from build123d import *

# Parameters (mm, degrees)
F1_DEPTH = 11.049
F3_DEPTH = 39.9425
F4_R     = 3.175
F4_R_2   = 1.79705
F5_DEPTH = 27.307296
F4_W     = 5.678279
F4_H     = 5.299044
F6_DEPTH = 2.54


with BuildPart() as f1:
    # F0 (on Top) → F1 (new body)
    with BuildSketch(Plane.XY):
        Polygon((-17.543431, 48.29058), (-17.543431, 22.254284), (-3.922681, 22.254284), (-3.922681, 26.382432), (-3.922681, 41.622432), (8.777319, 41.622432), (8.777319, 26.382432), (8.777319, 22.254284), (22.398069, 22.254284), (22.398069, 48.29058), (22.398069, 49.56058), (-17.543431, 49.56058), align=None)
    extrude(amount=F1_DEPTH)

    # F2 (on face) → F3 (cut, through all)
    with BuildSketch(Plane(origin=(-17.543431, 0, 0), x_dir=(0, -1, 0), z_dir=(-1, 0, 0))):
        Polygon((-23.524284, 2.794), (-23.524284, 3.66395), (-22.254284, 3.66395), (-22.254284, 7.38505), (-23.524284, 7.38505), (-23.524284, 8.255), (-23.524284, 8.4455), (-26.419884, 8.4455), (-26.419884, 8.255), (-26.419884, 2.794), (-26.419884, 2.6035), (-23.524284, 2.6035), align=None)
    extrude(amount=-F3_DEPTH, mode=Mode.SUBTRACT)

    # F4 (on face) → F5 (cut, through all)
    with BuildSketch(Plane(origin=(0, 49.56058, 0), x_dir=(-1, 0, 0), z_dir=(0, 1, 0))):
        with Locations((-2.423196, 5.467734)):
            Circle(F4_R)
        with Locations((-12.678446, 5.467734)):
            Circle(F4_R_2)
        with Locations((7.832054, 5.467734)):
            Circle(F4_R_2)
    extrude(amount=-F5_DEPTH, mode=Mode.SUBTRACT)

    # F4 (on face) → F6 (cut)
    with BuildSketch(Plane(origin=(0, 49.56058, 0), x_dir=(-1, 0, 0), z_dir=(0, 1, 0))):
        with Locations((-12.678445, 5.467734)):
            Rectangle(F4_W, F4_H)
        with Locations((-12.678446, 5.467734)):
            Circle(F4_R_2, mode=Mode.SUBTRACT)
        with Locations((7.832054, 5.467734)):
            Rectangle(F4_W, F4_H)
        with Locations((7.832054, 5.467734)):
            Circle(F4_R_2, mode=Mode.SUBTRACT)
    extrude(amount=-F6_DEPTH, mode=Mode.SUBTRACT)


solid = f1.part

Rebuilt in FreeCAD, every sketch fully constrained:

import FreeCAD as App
import Part
import Sketcher
Q = App.Units.Quantity

doc = App.newDocument("Part")
params = doc.addObject("Spreadsheet::Sheet", "Params")
for row, (alias, value) in enumerate([
    ("sketch1_width", "0.5 in"),
    ("pad1_length", "0.435 in"),
    ("sketch2_width", "0.05 in"),
    ("sketch2_height", "0.23 in"),
    ("sketch2_width2", "0.114 in"),
    ("sketch3_diameter", "0.25 in"),
    ("pocket3_length", "0.1 in"),
], start=1):
    params.set(f"A{row}", alias)
    params.set(f"B{row}", "=" + value)
    params.setAlias(f"B{row}", alias)

body = doc.addObject("PartDesign::Body", "Body")

# Sketch on XY plane
sketch1 = body.newObject("Sketcher::SketchObject", "Sketch")
sketch1.AttachmentSupport = (doc.getObject("XY_Plane"), [""])
sketch1.MapMode = "FlatFace"
sketch1.addGeometry([
    Part.LineSegment(App.Vector(-17.543431, 22.254284, 0), App.Vector(-3.922681, 22.254284, 0)),  # 0
    Part.LineSegment(App.Vector(-3.922681, 22.254284, 0), App.Vector(-3.922681, 41.622432, 0)),  # 1
    Part.LineSegment(App.Vector(-3.922681, 41.622432, 0), App.Vector(8.777319, 41.622432, 0)),  # 2
    Part.LineSegment(App.Vector(8.777319, 41.622432, 0), App.Vector(8.777319, 22.254284, 0)),  # 3
    Part.LineSegment(App.Vector(8.777319, 22.254284, 0), App.Vector(22.398069, 22.254284, 0)),  # 4
    Part.LineSegment(App.Vector(22.398069, 22.254284, 0), App.Vector(22.398069, 49.56058, 0)),  # 5
    Part.LineSegment(App.Vector(22.398069, 49.56058, 0), App.Vector(-17.543431, 49.56058, 0)),  # 6
    Part.LineSegment(App.Vector(-17.543431, 49.56058, 0), App.Vector(-17.543431, 22.254284, 0)),  # 7
], False)
sketch1.addConstraint([
    Sketcher.Constraint("Coincident", 0, 2, 1, 1),
    Sketcher.Constraint("Coincident", 1, 2, 2, 1),
    Sketcher.Constraint("Coincident", 2, 2, 3, 1),
    Sketcher.Constraint("Coincident", 3, 2, 4, 1),
    Sketcher.Constraint("Coincident", 4, 2, 5, 1),
    Sketcher.Constraint("Coincident", 5, 2, 6, 1),
    Sketcher.Constraint("Coincident", 6, 2, 7, 1),
    Sketcher.Constraint("Coincident", 7, 2, 0, 1),
    Sketcher.Constraint("Horizontal", 0),
    Sketcher.Constraint("Vertical", 1),
    Sketcher.Constraint("Horizontal", 2),
    Sketcher.Constraint("Vertical", 3),
    Sketcher.Constraint("Horizontal", 4),
    Sketcher.Constraint("Vertical", 5),
    Sketcher.Constraint("Horizontal", 6),
    Sketcher.Constraint("Vertical", 7),
    Sketcher.Constraint("Horizontal", 0, 2, 3, 2),
    Sketcher.Constraint("Equal", 0, 4),
    Sketcher.Constraint("DistanceX", 2, 1, 2, 2, Q("0.5 in")),
    Sketcher.Constraint("DistanceX", 6, 2, 6, 1, Q("1.5725 in")),
    Sketcher.Constraint("DistanceY", 1, 1, 1, 2, 19.368148),
    Sketcher.Constraint("DistanceY", 5, 1, 5, 2, 27.306296),
    Sketcher.Constraint("DistanceX", 0, 2, -1, 1, 3.922681),
    Sketcher.Constraint("DistanceY", -1, 1, 5, 2, 49.56058),
])
sketch1.setExpression("Constraints[18]", "Params.sketch1_width")
pad1 = body.newObject("PartDesign::Pad", "Pad")
pad1.Profile = sketch1
pad1.setExpression("Length", "Params.pad1_length")

# Sketch on YZ plane
sketch2 = body.newObject("Sketcher::SketchObject", "Sketch001")
sketch2.AttachmentSupport = (doc.getObject("YZ_Plane"), [""])
sketch2.MapMode = "FlatFace"
sketch2.AttachmentOffset = App.Placement(App.Vector(0, 0, -17.543431), App.Rotation())
sketch2.addGeometry([
    Part.LineSegment(App.Vector(23.524284, 3.66395, 0), App.Vector(22.254284, 3.66395, 0)),  # 0
    Part.LineSegment(App.Vector(22.254284, 3.66395, 0), App.Vector(22.254284, 7.38505, 0)),  # 1
    Part.LineSegment(App.Vector(22.254284, 7.38505, 0), App.Vector(23.524284, 7.38505, 0)),  # 2
    Part.LineSegment(App.Vector(23.524284, 7.38505, 0), App.Vector(23.524284, 8.4455, 0)),  # 3
    Part.LineSegment(App.Vector(23.524284, 8.4455, 0), App.Vector(26.419884, 8.4455, 0)),  # 4
    Part.LineSegment(App.Vector(26.419884, 8.4455, 0), App.Vector(26.419884, 2.6035, 0)),  # 5
    Part.LineSegment(App.Vector(26.419884, 2.6035, 0), App.Vector(23.524284, 2.6035, 0)),  # 6
    Part.LineSegment(App.Vector(23.524284, 2.6035, 0), App.Vector(23.524284, 3.66395, 0)),  # 7
], False)
sketch2.addConstraint([
    Sketcher.Constraint("Coincident", 0, 2, 1, 1),
    Sketcher.Constraint("Coincident", 1, 2, 2, 1),
    Sketcher.Constraint("Coincident", 2, 2, 3, 1),
    Sketcher.Constraint("Coincident", 3, 2, 4, 1),
    Sketcher.Constraint("Coincident", 4, 2, 5, 1),
    Sketcher.Constraint("Coincident", 5, 2, 6, 1),
    Sketcher.Constraint("Coincident", 6, 2, 7, 1),
    Sketcher.Constraint("Coincident", 7, 2, 0, 1),
    Sketcher.Constraint("Horizontal", 0),
    Sketcher.Constraint("Vertical", 1),
    Sketcher.Constraint("Horizontal", 2),
    Sketcher.Constraint("Vertical", 3),
    Sketcher.Constraint("Horizontal", 4),
    Sketcher.Constraint("Vertical", 5),
    Sketcher.Constraint("Horizontal", 6),
    Sketcher.Constraint("Vertical", 7),
    Sketcher.Constraint("Vertical", 3, 2, 6, 2),
    Sketcher.Constraint("Equal", 3, 7),
    Sketcher.Constraint("DistanceX", 0, 2, 0, 1, Q("0.05 in")),
    Sketcher.Constraint("DistanceY", 5, 2, 5, 1, Q("0.23 in")),
    Sketcher.Constraint("DistanceX", 4, 1, 4, 2, Q("0.114 in")),
    Sketcher.Constraint("DistanceY", 1, 1, 1, 2, Q("0.1465 in")),
    Sketcher.Constraint("DistanceY", -1, 1, 3, 2, Q("0.3325 in")),
    Sketcher.Constraint("DistanceX", -1, 1, 0, 2, 22.254284),
])
sketch2.setExpression("Constraints[18]", "Params.sketch2_width")
sketch2.setExpression("Constraints[19]", "Params.sketch2_height")
sketch2.setExpression("Constraints[20]", "Params.sketch2_width2")
pocket1 = body.newObject("PartDesign::Pocket", "Pocket")
pocket1.Profile = sketch2
pocket1.Type = "ThroughAll"
pocket1.Reversed = True

# Sketch on XZ plane
sketch3 = body.newObject("Sketcher::SketchObject", "Sketch002")
sketch3.AttachmentSupport = (doc.getObject("XZ_Plane"), [""])
sketch3.MapMode = "FlatFace"
sketch3.AttachmentOffset = App.Placement(App.Vector(0, 0, -49.56058), App.Rotation())
sketch3.addGeometry([
    Part.Circle(App.Vector(2.423196, 5.467734, 0), App.Vector(0, 0, 1), 3.175),
    Part.Circle(App.Vector(12.678446, 5.467734, 0), App.Vector(0, 0, 1), 1.79705),
    Part.Circle(App.Vector(-7.832054, 5.467734, 0), App.Vector(0, 0, 1), 1.79705),
], False)
sketch3.addConstraint([
    Sketcher.Constraint("Equal", 1, 2),
    Sketcher.Constraint("Horizontal", 0, 3, 1, 3),
    Sketcher.Constraint("Horizontal", 1, 3, 2, 3),
    Sketcher.Constraint("Diameter", 0, Q("0.25 in")),
    Sketcher.Constraint("Diameter", 1, Q("0.1415 in")),
    Sketcher.Constraint("DistanceX", 2, 3, 1, 3, Q("0.8075 in")),
    Sketcher.Constraint("DistanceX", 0, 3, 1, 3, 10.25525),
    Sketcher.Constraint("DistanceX", -1, 1, 0, 3, 2.423196),
    Sketcher.Constraint("DistanceY", -1, 1, 0, 3, 5.467734),
])
sketch3.setExpression("Constraints[3]", "Params.sketch3_diameter")
pocket2 = body.newObject("PartDesign::Pocket", "Pocket001")
pocket2.Profile = sketch3
pocket2.Type = "ThroughAll"
pocket2.Reversed = True

# Sketch on XZ plane
sketch4 = body.newObject("Sketcher::SketchObject", "Sketch003")
sketch4.AttachmentSupport = (doc.getObject("XZ_Plane"), [""])
sketch4.MapMode = "FlatFace"
sketch4.AttachmentOffset = App.Placement(App.Vector(0, 0, -49.56058), App.Rotation())
sketch4.addGeometry([
    Part.LineSegment(App.Vector(15.517584, 8.117256, 0), App.Vector(15.517584, 2.818212, 0)),  # 0
    Part.LineSegment(App.Vector(15.517584, 2.818212, 0), App.Vector(9.839306, 2.818212, 0)),  # 1
    Part.LineSegment(App.Vector(9.839306, 2.818212, 0), App.Vector(9.839306, 8.117256, 0)),  # 2
    Part.LineSegment(App.Vector(9.839306, 8.117256, 0), App.Vector(15.517584, 8.117256, 0)),  # 3
    Part.Circle(App.Vector(12.678446, 5.467734, 0), App.Vector(0, 0, 1), 1.79705),  # 4
    Part.LineSegment(App.Vector(-4.992915, 8.117256, 0), App.Vector(-4.992915, 2.818212, 0)),  # 5
    Part.LineSegment(App.Vector(-4.992915, 2.818212, 0), App.Vector(-10.671193, 2.818212, 0)),  # 6
    Part.LineSegment(App.Vector(-10.671193, 2.818212, 0), App.Vector(-10.671193, 8.117256, 0)),  # 7
    Part.LineSegment(App.Vector(-10.671193, 8.117256, 0), App.Vector(-4.992915, 8.117256, 0)),  # 8
    Part.Circle(App.Vector(-7.832054, 5.467734, 0), App.Vector(0, 0, 1), 1.79705),  # 9
], False)
sketch4.addConstraint([
    Sketcher.Constraint("Coincident", 0, 2, 1, 1),
    Sketcher.Constraint("Coincident", 1, 2, 2, 1),
    Sketcher.Constraint("Coincident", 2, 2, 3, 1),
    Sketcher.Constraint("Coincident", 3, 2, 0, 1),
    Sketcher.Constraint("Coincident", 5, 2, 6, 1),
    Sketcher.Constraint("Coincident", 6, 2, 7, 1),
    Sketcher.Constraint("Coincident", 7, 2, 8, 1),
    Sketcher.Constraint("Coincident", 8, 2, 5, 1),
    Sketcher.Constraint("Vertical", 0),
    Sketcher.Constraint("Horizontal", 1),
    Sketcher.Constraint("Vertical", 2),
    Sketcher.Constraint("Horizontal", 3),
    Sketcher.Constraint("Vertical", 5),
    Sketcher.Constraint("Horizontal", 6),
    Sketcher.Constraint("Vertical", 7),
    Sketcher.Constraint("Horizontal", 8),
    Sketcher.Constraint("Equal", 4, 9),
    Sketcher.Constraint("Horizontal", 4, 3, 9, 3),
    Sketcher.Constraint("Horizontal", 1, 2, 5, 2),
    Sketcher.Constraint("Horizontal", 3, 2, 7, 2),
    Sketcher.Constraint("Equal", 3, 6),
    Sketcher.Constraint("Diameter", 4, Q("0.1415 in")),
    Sketcher.Constraint("DistanceX", 9, 3, 4, 3, Q("0.8075 in")),
    Sketcher.Constraint("DistanceX", 5, 2, 0, 2, Q("0.8075 in")),
    Sketcher.Constraint("DistanceX", 1, 2, 1, 1, 5.678279),
    Sketcher.Constraint("DistanceY", 0, 2, 0, 1, 5.299044),
    Sketcher.Constraint("DistanceY", -1, 1, 0, 2, 2.818212),
    Sketcher.Constraint("DistanceX", 4, 3, 0, 2, 2.839139),
    Sketcher.Constraint("DistanceY", 4, 3, 2, 2, 2.649522),
    Sketcher.Constraint("DistanceX", -1, 1, 4, 3, 12.678446),
])
pocket3 = body.newObject("PartDesign::Pocket", "Pocket002")
pocket3.Profile = sketch4
pocket3.setExpression("Length", "Params.pocket3_length")
pocket3.Reversed = True

doc.recompute()
